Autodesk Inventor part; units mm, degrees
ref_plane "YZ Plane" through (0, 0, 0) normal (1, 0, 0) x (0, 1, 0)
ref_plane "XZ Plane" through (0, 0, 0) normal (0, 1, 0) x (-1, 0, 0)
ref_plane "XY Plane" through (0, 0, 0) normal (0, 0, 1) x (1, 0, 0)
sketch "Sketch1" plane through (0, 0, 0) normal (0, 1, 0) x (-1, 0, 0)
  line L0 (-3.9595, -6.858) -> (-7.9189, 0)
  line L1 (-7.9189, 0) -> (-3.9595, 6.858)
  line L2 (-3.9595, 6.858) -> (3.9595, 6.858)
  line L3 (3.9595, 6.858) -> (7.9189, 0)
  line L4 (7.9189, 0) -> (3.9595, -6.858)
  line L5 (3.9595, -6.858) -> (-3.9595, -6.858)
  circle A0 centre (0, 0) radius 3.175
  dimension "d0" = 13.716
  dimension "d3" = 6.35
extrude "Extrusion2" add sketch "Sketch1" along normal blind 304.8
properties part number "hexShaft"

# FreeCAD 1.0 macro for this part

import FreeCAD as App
import Part
import Sketcher
from FreeCAD import Vector
Q = App.Units.Quantity


def add_polygon(sketch, points):
    """Adds a closed chain of lines whose ends are joined by coincident constraints."""
    first, n = sketch.GeometryCount, len(points)
    for a, b in zip(points, points[1:] + points[:1]):
        sketch.addGeometry(Part.LineSegment(App.Vector(*a, 0), App.Vector(*b, 0)), False)
    for i in range(n):
        sketch.addConstraint(Sketcher.Constraint("Coincident", first + i, 2, first + (i + 1) % n, 1))

doc = App.newDocument("Part")
params = doc.addObject("Spreadsheet::Sheet", "Params")
for row, (alias, value) in enumerate([
    ("sketch1_diameter", "0.25 in"),
    ("pad1_length", "12 in"),
], start=1):
    params.set(f"A{row}", alias)
    params.set(f"B{row}", "=" + value)
    params.setAlias(f"B{row}", alias)

body = doc.addObject("PartDesign::Body", "Body")

# Sketch on XZ plane
sketch1 = doc.addObject("Sketcher::SketchObject", "Sketch")
body.addObject(sketch1)
sketch1.AttachmentSupport = (doc.XZ_Plane, [""])
sketch1.MapMode = "FlatFace"
add_polygon(sketch1, [(7.9, 0), (4, -6.9), (-4, -6.9), (-7.9, 0), (-4, 6.9), (4, 6.9)])  # lines 0-5
sketch1.addGeometry(Part.Circle(Vector(0, 0, 0), Vector(0, 0, 1), 3.2), False)  # 6
sketch1.addConstraint(Sketcher.Constraint("Horizontal", 1))
sketch1.addConstraint(Sketcher.Constraint("Horizontal", 4))
sketch1.addConstraint(Sketcher.Constraint("Coincident", 6, 3, -1, 1))
sketch1.addConstraint(Sketcher.Constraint("Symmetric", 0, 2, 3, 2, -1, 1))
sketch1.addConstraint(Sketcher.Constraint("Symmetric", 2, 2, 5, 2, -1, 1))
sketch1.addConstraint(Sketcher.Constraint("PointOnObject", 2, 2, -1))
sketch1.addConstraint(Sketcher.Constraint("Parallel", 2, 5))
sketch1.addConstraint(Sketcher.Constraint("Vertical", 1, 2, 3, 2))
sketch1.addConstraint(Sketcher.Constraint("Diameter", 6, Q("0.25 in")))
sketch1.addConstraint(Sketcher.Constraint("DistanceY", 1, 2, 3, 2, Q("0.54 in")))
sketch1.addConstraint(Sketcher.Constraint("Angle", 0, Q("-119.9996 deg")))
sketch1.addConstraint(Sketcher.Constraint("DistanceX", 1, 2, 1, 1, 7.919))
sketch1.setExpression("Constraints[14]", "Params.sketch1_diameter")
pad1 = doc.addObject("PartDesign::Pad", "Pad")
body.addObject(pad1)
pad1.Profile = sketch1
pad1.setExpression("Length", "Params.pad1_length")
pad1.Reversed = True

doc.recompute()
